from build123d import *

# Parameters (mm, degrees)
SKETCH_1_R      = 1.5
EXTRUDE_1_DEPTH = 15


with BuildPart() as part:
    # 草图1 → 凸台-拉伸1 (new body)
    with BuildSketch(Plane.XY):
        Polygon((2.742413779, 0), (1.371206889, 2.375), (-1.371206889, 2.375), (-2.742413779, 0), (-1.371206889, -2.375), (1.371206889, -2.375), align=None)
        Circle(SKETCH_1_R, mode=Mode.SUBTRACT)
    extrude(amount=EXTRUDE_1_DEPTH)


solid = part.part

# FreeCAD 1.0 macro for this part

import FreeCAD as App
import Part
import Sketcher
from FreeCAD import Vector
Q = App.Units.Quantity


def add_polygon(sketch, points):
    """Adds a closed chain of lines whose ends are joined by coincident constraints."""
    first, n = sketch.GeometryCount, len(points)
    for a, b in zip(points, points[1:] + points[:1]):
        sketch.addGeometry(Part.LineSegment(App.Vector(*a, 0), App.Vector(*b, 0)), False)
    for i in range(n):
        sketch.addConstraint(Sketcher.Constraint("Coincident", first + i, 2, first + (i + 1) % n, 1))

doc = App.newDocument("Part")
body = doc.addObject("PartDesign::Body", "Body")

# Sketch on XY plane
sketch1 = body.newObject("Sketcher::SketchObject", "Sketch")
sketch1.AttachmentSupport = (doc.getObject("XY_Plane"), [""])
sketch1.MapMode = "FlatFace"
add_polygon(sketch1, [(2.7, 0), (1.4, 2.4), (-1.4, 2.4), (-2.7, 0), (-1.4, -2.4), (1.4, -2.4)])  # lines 0-5
sketch1.addGeometry(Part.Circle(Vector(0, 0, 0), Vector(0, 0, 1), 1.5), False)  # 6
sketch1.addConstraint(Sketcher.Constraint("Horizontal", 1))
sketch1.addConstraint(Sketcher.Constraint("Horizontal", 4))
sketch1.addConstraint(Sketcher.Constraint("Coincident", 6, 3, -1, 1))
sketch1.addConstraint(Sketcher.Constraint("Symmetric", 0, 2, 3, 2, -1, 1))
sketch1.addConstraint(Sketcher.Constraint("Symmetric", 2, 2, 5, 2, -1, 1))
sketch1.addConstraint(Sketcher.Constraint("PointOnObject", 2, 2, -1))
sketch1.addConstraint(Sketcher.Constraint("Parallel", 2, 5))
sketch1.addConstraint(Sketcher.Constraint("Vertical", 1, 2, 3, 2))
sketch1.addConstraint(Sketcher.Constraint("Diameter", 6, Q("3 mm")))
sketch1.addConstraint(Sketcher.Constraint("Angle", 0, Q("120 deg")))
sketch1.addConstraint(Sketcher.Constraint("DistanceY", 3, 2, 1, 2, Q("4.75 mm")))
sketch1.addConstraint(Sketcher.Constraint("DistanceX", 1, 2, 1, 1, Q("2.742414 mm")))
pad1 = body.newObject("PartDesign::Pad", "Pad")
pad1.Profile = sketch1
pad1.Length = 15

doc.recompute()
